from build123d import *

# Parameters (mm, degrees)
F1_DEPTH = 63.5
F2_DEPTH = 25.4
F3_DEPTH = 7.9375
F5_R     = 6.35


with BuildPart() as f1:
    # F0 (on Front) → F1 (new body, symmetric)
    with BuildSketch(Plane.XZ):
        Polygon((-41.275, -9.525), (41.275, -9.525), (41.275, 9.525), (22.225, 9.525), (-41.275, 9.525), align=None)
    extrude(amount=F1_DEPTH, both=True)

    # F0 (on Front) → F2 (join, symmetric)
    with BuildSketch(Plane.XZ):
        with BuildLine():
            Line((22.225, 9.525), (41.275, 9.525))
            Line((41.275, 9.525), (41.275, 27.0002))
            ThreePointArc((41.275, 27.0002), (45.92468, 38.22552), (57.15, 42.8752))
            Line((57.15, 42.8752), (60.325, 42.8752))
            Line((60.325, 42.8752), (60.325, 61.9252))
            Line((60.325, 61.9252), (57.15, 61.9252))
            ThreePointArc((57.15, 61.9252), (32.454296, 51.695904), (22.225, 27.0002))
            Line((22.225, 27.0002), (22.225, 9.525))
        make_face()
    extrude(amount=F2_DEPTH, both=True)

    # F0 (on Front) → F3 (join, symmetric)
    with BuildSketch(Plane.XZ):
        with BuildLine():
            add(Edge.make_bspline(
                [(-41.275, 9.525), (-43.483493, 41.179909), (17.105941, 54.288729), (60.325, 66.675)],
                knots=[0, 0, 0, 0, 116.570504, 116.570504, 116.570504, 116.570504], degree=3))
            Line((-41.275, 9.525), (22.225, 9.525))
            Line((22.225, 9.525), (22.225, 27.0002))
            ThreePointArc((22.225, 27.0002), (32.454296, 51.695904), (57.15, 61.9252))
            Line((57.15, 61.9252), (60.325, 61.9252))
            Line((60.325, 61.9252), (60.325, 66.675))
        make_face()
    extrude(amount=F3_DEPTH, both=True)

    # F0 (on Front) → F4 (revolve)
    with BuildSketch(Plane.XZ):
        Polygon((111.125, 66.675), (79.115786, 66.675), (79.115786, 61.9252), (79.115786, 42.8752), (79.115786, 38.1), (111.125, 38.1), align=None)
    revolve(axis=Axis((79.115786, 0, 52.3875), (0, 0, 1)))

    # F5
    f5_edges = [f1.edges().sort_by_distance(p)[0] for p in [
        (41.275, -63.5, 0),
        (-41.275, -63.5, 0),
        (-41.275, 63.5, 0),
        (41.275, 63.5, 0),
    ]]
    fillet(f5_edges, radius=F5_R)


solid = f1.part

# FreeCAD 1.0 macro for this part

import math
import FreeCAD as App
import Part
import Sketcher
Q = App.Units.Quantity


def edges_at(feature, points):
    """Names of the edges that pass closest to the given points."""
    edges = feature.Shape.Edges
    near = lambda p: min(range(len(edges)), key=lambda i: edges[i].distToShape(Part.Vertex(*p))[0])
    return sorted({f"Edge{near(p) + 1}" for p in points})

doc = App.newDocument("Part")
body = doc.addObject("PartDesign::Body", "Body")

# Sketch on XZ plane
sketch1 = body.newObject("Sketcher::SketchObject", "Sketch")
sketch1.AttachmentSupport = (doc.getObject("XZ_Plane"), [""])
sketch1.MapMode = "FlatFace"
sketch1.addGeometry(Part.LineSegment(App.Vector(-41, -10, 0), App.Vector(41, -10, 0)), False)
sketch1.addGeometry(Part.LineSegment(App.Vector(41, -10, 0), App.Vector(41, 10, 0)), False)
sketch1.addGeometry(Part.LineSegment(App.Vector(41, 10, 0), App.Vector(-41, 10, 0)), False)
sketch1.addGeometry(Part.LineSegment(App.Vector(-41, 10, 0), App.Vector(-41, -10, 0)), False)
sketch1.addConstraint(Sketcher.Constraint("Coincident", 0, 2, 1, 1))
sketch1.addConstraint(Sketcher.Constraint("Coincident", 1, 2, 2, 1))
sketch1.addConstraint(Sketcher.Constraint("Coincident", 2, 2, 3, 1))
sketch1.addConstraint(Sketcher.Constraint("Coincident", 3, 2, 0, 1))
sketch1.addConstraint(Sketcher.Constraint("Horizontal", 0))
sketch1.addConstraint(Sketcher.Constraint("Vertical", 1))
sketch1.addConstraint(Sketcher.Constraint("Horizontal", 2))
sketch1.addConstraint(Sketcher.Constraint("Vertical", 3))
sketch1.addConstraint(Sketcher.Constraint("Symmetric", 0, 2, 2, 2, -1, 1))
sketch1.addConstraint(Sketcher.Constraint("DistanceX", 0, 1, 0, 2, Q("3.25 in")))
sketch1.addConstraint(Sketcher.Constraint("DistanceY", 1, 1, 1, 2, Q("0.75 in")))
pad1 = body.newObject("PartDesign::Pad", "Pad")
pad1.Profile = sketch1
pad1.Length = Q("5 in")
pad1.Midplane = True

# Sketch on XZ plane
sketch2 = body.newObject("Sketcher::SketchObject", "Sketch001")
sketch2.AttachmentSupport = (doc.getObject("XZ_Plane"), [""])
sketch2.MapMode = "FlatFace"
sketch2.addGeometry(Part.LineSegment(App.Vector(22.2, 9.5, 0), App.Vector(41.3, 9.5, 0)), False)
sketch2.addGeometry(Part.LineSegment(App.Vector(41.3, 9.5, 0), App.Vector(41.3, 27, 0)), False)
sketch2.addGeometry(Part.ArcOfCircle(Part.Circle(App.Vector(57.2, 27, 0), App.Vector(0, 0, 1), 15.9), math.radians(90), math.radians(180)), False)
sketch2.addGeometry(Part.LineSegment(App.Vector(57.1, 42.9, 0), App.Vector(60.3, 42.9, 0)), False)
sketch2.addGeometry(Part.LineSegment(App.Vector(60.3, 42.9, 0), App.Vector(60.3, 61.9, 0)), False)
sketch2.addGeometry(Part.LineSegment(App.Vector(60.3, 61.9, 0), App.Vector(57.1, 61.9, 0)), False)
sketch2.addGeometry(Part.ArcOfCircle(Part.Circle(App.Vector(57.2, 27, 0), App.Vector(0, 0, 1), 34.9), math.radians(90), math.radians(180)), False)
sketch2.addGeometry(Part.LineSegment(App.Vector(22.2, 27, 0), App.Vector(22.2, 9.5, 0)), False)
sketch2.addConstraint(Sketcher.Constraint("Coincident", 0, 2, 1, 1))
sketch2.addConstraint(Sketcher.Constraint("Tangent", 1, 2, 2, 2))
sketch2.addConstraint(Sketcher.Constraint("Tangent", 2, 1, 3, 1))
sketch2.addConstraint(Sketcher.Constraint("Coincident", 3, 2, 4, 1))
sketch2.addConstraint(Sketcher.Constraint("Coincident", 4, 2, 5, 1))
sketch2.addConstraint(Sketcher.Constraint("Tangent", 5, 2, 6, 1))
sketch2.addConstraint(Sketcher.Constraint("Tangent", 6, 2, 7, 1))
sketch2.addConstraint(Sketcher.Constraint("Coincident", 7, 2, 0, 1))
sketch2.addConstraint(Sketcher.Constraint("Horizontal", 0))
sketch2.addConstraint(Sketcher.Constraint("Vertical", 1))
sketch2.addConstraint(Sketcher.Constraint("Horizontal", 3))
sketch2.addConstraint(Sketcher.Constraint("Vertical", 4))
sketch2.addConstraint(Sketcher.Constraint("Horizontal", 5))
sketch2.addConstraint(Sketcher.Constraint("Vertical", 7))
sketch2.addConstraint(Sketcher.Constraint("Coincident", 6, 3, 2, 3))
sketch2.addConstraint(Sketcher.Constraint("Radius", 2, Q("0.625 in")))
sketch2.addConstraint(Sketcher.Constraint("Radius", 6, Q("1.375 in")))
sketch2.addConstraint(Sketcher.Constraint("DistanceX", 3, 1, 3, 2, Q("0.125 in")))
sketch2.addConstraint(Sketcher.Constraint("DistanceY", 1, 1, 1, 2, Q("0.688 in")))
sketch2.addConstraint(Sketcher.Constraint("DistanceX", -1, 1, 2, 3, Q("2.25 in")))
sketch2.addConstraint(Sketcher.Constraint("DistanceY", -1, 1, 2, 3, Q("1.063 in")))
pad2 = body.newObject("PartDesign::Pad", "Pad001")
pad2.Profile = sketch2
pad2.Length = Q("2 in")
pad2.Midplane = True

# Sketch on XZ plane
sketch3 = body.newObject("Sketcher::SketchObject", "Sketch002")
sketch3.AttachmentSupport = (doc.getObject("XZ_Plane"), [""])
sketch3.MapMode = "FlatFace"
sketch3.addGeometry(Part.BSplineCurve([App.Vector(-41.275, 9.525, 0), App.Vector(-43.483493, 41.179909, 0), App.Vector(17.105941, 54.288729, 0), App.Vector(60.325, 66.675, 0)], [4, 4], [0, 116.570504], False, 3, [1, 1, 1, 1], False), False)
sketch3.addGeometry(Part.LineSegment(App.Vector(-41.275, 9.525, 0), App.Vector(22.225, 9.525, 0)), False)
sketch3.addGeometry(Part.LineSegment(App.Vector(22.225, 9.525, 0), App.Vector(22.225, 27.0002, 0)), False)
sketch3.addGeometry(Part.ArcOfCircle(Part.Circle(App.Vector(57.150001, 27.000199, 0), App.Vector(0, 0, 1), 34.925001), math.radians(90.000002), math.radians(179.999998)), False)
sketch3.addGeometry(Part.LineSegment(App.Vector(57.15, 61.9252, 0), App.Vector(60.325, 61.9252, 0)), False)
sketch3.addGeometry(Part.LineSegment(App.Vector(60.325, 61.9252, 0), App.Vector(60.325, 66.675, 0)), False)
sketch3.addConstraint(Sketcher.Constraint("Block", 0))
sketch3.addConstraint(Sketcher.Constraint("Coincident", 0, 1, 1, 1))
sketch3.addConstraint(Sketcher.Constraint("Coincident", 1, 2, 2, 1))
sketch3.addConstraint(Sketcher.Constraint("Tangent", 2, 2, 3, 2))
sketch3.addConstraint(Sketcher.Constraint("Tangent", 3, 1, 4, 1))
sketch3.addConstraint(Sketcher.Constraint("Coincident", 4, 2, 5, 1))
sketch3.addConstraint(Sketcher.Constraint("Coincident", 5, 2, 0, 2))
sketch3.addConstraint(Sketcher.Constraint("Horizontal", 1))
sketch3.addConstraint(Sketcher.Constraint("Vertical", 2))
sketch3.addConstraint(Sketcher.Constraint("Horizontal", 4))
sketch3.addConstraint(Sketcher.Constraint("Vertical", 5))
sketch3.addConstraint(Sketcher.Constraint("DistanceX", 1, 1, 1, 2, Q("2.5 in")))
sketch3.addConstraint(Sketcher.Constraint("Radius", 3, Q("1.375 in")))
sketch3.addConstraint(Sketcher.Constraint("DistanceY", 2, 1, 2, 2, Q("0.688 in")))
pad3 = body.newObject("PartDesign::Pad", "Pad002")
pad3.Profile = sketch3
pad3.Length = Q("0.625 in")
pad3.Midplane = True

# Sketch on XZ plane
sketch4 = body.newObject("Sketcher::SketchObject", "Sketch003")
sketch4.AttachmentSupport = (doc.getObject("XZ_Plane"), [""])
sketch4.MapMode = "FlatFace"
sketch4.addGeometry(Part.LineSegment(App.Vector(111, 67, 0), App.Vector(79, 67, 0)), False)
sketch4.addGeometry(Part.LineSegment(App.Vector(79, 67, 0), App.Vector(79, 38, 0)), False)
sketch4.addGeometry(Part.LineSegment(App.Vector(79, 38, 0), App.Vector(111, 38, 0)), False)
sketch4.addGeometry(Part.LineSegment(App.Vector(111, 38, 0), App.Vector(111, 67, 0)), False)
sketch4.addGeometry(Part.LineSegment(App.Vector(79, 38, 0), App.Vector(79, 67, 0)), True)  # axis
sketch4.addConstraint(Sketcher.Constraint("Coincident", 0, 2, 1, 1))
sketch4.addConstraint(Sketcher.Constraint("Coincident", 1, 2, 2, 1))
sketch4.addConstraint(Sketcher.Constraint("Coincident", 2, 2, 3, 1))
sketch4.addConstraint(Sketcher.Constraint("Coincident", 3, 2, 0, 1))
sketch4.addConstraint(Sketcher.Constraint("Horizontal", 0))
sketch4.addConstraint(Sketcher.Constraint("Vertical", 1))
sketch4.addConstraint(Sketcher.Constraint("Horizontal", 2))
sketch4.addConstraint(Sketcher.Constraint("Vertical", 3))
sketch4.addConstraint(Sketcher.Constraint("Vertical", 4))
sketch4.addConstraint(Sketcher.Constraint("Coincident", 4, 1, 1, 2))
sketch4.addConstraint(Sketcher.Constraint("Horizontal", 3, 2, 4, 2))
sketch4.addConstraint(Sketcher.Constraint("DistanceY", -1, 1, 1, 2, Q("1.5 in")))
sketch4.addConstraint(Sketcher.Constraint("DistanceY", 1, 2, 1, 1, Q("1.125 in")))
sketch4.addConstraint(Sketcher.Constraint("DistanceX", -1, 1, 2, 2, Q("4.375 in")))
sketch4.addConstraint(Sketcher.Constraint("DistanceX", 0, 2, 0, 1, Q("32.009214 mm")))
revolution = body.newObject("PartDesign::Revolution", "Revolution")
revolution.Profile = sketch4
revolution.ReferenceAxis = (sketch4, ["Axis0"])
revolution.Angle = 360
doc.recompute()

fillet = body.newObject("PartDesign::Fillet", "Fillet")
fillet.Base = (revolution, edges_at(revolution, [
    (41.275, -63.5, 0),
    (-41.275, -63.5, 0),
    (-41.275, 63.5, 0),
    (41.275, 63.5, 0),
]))
fillet.Radius = Q("0.25 in")

doc.recompute()
